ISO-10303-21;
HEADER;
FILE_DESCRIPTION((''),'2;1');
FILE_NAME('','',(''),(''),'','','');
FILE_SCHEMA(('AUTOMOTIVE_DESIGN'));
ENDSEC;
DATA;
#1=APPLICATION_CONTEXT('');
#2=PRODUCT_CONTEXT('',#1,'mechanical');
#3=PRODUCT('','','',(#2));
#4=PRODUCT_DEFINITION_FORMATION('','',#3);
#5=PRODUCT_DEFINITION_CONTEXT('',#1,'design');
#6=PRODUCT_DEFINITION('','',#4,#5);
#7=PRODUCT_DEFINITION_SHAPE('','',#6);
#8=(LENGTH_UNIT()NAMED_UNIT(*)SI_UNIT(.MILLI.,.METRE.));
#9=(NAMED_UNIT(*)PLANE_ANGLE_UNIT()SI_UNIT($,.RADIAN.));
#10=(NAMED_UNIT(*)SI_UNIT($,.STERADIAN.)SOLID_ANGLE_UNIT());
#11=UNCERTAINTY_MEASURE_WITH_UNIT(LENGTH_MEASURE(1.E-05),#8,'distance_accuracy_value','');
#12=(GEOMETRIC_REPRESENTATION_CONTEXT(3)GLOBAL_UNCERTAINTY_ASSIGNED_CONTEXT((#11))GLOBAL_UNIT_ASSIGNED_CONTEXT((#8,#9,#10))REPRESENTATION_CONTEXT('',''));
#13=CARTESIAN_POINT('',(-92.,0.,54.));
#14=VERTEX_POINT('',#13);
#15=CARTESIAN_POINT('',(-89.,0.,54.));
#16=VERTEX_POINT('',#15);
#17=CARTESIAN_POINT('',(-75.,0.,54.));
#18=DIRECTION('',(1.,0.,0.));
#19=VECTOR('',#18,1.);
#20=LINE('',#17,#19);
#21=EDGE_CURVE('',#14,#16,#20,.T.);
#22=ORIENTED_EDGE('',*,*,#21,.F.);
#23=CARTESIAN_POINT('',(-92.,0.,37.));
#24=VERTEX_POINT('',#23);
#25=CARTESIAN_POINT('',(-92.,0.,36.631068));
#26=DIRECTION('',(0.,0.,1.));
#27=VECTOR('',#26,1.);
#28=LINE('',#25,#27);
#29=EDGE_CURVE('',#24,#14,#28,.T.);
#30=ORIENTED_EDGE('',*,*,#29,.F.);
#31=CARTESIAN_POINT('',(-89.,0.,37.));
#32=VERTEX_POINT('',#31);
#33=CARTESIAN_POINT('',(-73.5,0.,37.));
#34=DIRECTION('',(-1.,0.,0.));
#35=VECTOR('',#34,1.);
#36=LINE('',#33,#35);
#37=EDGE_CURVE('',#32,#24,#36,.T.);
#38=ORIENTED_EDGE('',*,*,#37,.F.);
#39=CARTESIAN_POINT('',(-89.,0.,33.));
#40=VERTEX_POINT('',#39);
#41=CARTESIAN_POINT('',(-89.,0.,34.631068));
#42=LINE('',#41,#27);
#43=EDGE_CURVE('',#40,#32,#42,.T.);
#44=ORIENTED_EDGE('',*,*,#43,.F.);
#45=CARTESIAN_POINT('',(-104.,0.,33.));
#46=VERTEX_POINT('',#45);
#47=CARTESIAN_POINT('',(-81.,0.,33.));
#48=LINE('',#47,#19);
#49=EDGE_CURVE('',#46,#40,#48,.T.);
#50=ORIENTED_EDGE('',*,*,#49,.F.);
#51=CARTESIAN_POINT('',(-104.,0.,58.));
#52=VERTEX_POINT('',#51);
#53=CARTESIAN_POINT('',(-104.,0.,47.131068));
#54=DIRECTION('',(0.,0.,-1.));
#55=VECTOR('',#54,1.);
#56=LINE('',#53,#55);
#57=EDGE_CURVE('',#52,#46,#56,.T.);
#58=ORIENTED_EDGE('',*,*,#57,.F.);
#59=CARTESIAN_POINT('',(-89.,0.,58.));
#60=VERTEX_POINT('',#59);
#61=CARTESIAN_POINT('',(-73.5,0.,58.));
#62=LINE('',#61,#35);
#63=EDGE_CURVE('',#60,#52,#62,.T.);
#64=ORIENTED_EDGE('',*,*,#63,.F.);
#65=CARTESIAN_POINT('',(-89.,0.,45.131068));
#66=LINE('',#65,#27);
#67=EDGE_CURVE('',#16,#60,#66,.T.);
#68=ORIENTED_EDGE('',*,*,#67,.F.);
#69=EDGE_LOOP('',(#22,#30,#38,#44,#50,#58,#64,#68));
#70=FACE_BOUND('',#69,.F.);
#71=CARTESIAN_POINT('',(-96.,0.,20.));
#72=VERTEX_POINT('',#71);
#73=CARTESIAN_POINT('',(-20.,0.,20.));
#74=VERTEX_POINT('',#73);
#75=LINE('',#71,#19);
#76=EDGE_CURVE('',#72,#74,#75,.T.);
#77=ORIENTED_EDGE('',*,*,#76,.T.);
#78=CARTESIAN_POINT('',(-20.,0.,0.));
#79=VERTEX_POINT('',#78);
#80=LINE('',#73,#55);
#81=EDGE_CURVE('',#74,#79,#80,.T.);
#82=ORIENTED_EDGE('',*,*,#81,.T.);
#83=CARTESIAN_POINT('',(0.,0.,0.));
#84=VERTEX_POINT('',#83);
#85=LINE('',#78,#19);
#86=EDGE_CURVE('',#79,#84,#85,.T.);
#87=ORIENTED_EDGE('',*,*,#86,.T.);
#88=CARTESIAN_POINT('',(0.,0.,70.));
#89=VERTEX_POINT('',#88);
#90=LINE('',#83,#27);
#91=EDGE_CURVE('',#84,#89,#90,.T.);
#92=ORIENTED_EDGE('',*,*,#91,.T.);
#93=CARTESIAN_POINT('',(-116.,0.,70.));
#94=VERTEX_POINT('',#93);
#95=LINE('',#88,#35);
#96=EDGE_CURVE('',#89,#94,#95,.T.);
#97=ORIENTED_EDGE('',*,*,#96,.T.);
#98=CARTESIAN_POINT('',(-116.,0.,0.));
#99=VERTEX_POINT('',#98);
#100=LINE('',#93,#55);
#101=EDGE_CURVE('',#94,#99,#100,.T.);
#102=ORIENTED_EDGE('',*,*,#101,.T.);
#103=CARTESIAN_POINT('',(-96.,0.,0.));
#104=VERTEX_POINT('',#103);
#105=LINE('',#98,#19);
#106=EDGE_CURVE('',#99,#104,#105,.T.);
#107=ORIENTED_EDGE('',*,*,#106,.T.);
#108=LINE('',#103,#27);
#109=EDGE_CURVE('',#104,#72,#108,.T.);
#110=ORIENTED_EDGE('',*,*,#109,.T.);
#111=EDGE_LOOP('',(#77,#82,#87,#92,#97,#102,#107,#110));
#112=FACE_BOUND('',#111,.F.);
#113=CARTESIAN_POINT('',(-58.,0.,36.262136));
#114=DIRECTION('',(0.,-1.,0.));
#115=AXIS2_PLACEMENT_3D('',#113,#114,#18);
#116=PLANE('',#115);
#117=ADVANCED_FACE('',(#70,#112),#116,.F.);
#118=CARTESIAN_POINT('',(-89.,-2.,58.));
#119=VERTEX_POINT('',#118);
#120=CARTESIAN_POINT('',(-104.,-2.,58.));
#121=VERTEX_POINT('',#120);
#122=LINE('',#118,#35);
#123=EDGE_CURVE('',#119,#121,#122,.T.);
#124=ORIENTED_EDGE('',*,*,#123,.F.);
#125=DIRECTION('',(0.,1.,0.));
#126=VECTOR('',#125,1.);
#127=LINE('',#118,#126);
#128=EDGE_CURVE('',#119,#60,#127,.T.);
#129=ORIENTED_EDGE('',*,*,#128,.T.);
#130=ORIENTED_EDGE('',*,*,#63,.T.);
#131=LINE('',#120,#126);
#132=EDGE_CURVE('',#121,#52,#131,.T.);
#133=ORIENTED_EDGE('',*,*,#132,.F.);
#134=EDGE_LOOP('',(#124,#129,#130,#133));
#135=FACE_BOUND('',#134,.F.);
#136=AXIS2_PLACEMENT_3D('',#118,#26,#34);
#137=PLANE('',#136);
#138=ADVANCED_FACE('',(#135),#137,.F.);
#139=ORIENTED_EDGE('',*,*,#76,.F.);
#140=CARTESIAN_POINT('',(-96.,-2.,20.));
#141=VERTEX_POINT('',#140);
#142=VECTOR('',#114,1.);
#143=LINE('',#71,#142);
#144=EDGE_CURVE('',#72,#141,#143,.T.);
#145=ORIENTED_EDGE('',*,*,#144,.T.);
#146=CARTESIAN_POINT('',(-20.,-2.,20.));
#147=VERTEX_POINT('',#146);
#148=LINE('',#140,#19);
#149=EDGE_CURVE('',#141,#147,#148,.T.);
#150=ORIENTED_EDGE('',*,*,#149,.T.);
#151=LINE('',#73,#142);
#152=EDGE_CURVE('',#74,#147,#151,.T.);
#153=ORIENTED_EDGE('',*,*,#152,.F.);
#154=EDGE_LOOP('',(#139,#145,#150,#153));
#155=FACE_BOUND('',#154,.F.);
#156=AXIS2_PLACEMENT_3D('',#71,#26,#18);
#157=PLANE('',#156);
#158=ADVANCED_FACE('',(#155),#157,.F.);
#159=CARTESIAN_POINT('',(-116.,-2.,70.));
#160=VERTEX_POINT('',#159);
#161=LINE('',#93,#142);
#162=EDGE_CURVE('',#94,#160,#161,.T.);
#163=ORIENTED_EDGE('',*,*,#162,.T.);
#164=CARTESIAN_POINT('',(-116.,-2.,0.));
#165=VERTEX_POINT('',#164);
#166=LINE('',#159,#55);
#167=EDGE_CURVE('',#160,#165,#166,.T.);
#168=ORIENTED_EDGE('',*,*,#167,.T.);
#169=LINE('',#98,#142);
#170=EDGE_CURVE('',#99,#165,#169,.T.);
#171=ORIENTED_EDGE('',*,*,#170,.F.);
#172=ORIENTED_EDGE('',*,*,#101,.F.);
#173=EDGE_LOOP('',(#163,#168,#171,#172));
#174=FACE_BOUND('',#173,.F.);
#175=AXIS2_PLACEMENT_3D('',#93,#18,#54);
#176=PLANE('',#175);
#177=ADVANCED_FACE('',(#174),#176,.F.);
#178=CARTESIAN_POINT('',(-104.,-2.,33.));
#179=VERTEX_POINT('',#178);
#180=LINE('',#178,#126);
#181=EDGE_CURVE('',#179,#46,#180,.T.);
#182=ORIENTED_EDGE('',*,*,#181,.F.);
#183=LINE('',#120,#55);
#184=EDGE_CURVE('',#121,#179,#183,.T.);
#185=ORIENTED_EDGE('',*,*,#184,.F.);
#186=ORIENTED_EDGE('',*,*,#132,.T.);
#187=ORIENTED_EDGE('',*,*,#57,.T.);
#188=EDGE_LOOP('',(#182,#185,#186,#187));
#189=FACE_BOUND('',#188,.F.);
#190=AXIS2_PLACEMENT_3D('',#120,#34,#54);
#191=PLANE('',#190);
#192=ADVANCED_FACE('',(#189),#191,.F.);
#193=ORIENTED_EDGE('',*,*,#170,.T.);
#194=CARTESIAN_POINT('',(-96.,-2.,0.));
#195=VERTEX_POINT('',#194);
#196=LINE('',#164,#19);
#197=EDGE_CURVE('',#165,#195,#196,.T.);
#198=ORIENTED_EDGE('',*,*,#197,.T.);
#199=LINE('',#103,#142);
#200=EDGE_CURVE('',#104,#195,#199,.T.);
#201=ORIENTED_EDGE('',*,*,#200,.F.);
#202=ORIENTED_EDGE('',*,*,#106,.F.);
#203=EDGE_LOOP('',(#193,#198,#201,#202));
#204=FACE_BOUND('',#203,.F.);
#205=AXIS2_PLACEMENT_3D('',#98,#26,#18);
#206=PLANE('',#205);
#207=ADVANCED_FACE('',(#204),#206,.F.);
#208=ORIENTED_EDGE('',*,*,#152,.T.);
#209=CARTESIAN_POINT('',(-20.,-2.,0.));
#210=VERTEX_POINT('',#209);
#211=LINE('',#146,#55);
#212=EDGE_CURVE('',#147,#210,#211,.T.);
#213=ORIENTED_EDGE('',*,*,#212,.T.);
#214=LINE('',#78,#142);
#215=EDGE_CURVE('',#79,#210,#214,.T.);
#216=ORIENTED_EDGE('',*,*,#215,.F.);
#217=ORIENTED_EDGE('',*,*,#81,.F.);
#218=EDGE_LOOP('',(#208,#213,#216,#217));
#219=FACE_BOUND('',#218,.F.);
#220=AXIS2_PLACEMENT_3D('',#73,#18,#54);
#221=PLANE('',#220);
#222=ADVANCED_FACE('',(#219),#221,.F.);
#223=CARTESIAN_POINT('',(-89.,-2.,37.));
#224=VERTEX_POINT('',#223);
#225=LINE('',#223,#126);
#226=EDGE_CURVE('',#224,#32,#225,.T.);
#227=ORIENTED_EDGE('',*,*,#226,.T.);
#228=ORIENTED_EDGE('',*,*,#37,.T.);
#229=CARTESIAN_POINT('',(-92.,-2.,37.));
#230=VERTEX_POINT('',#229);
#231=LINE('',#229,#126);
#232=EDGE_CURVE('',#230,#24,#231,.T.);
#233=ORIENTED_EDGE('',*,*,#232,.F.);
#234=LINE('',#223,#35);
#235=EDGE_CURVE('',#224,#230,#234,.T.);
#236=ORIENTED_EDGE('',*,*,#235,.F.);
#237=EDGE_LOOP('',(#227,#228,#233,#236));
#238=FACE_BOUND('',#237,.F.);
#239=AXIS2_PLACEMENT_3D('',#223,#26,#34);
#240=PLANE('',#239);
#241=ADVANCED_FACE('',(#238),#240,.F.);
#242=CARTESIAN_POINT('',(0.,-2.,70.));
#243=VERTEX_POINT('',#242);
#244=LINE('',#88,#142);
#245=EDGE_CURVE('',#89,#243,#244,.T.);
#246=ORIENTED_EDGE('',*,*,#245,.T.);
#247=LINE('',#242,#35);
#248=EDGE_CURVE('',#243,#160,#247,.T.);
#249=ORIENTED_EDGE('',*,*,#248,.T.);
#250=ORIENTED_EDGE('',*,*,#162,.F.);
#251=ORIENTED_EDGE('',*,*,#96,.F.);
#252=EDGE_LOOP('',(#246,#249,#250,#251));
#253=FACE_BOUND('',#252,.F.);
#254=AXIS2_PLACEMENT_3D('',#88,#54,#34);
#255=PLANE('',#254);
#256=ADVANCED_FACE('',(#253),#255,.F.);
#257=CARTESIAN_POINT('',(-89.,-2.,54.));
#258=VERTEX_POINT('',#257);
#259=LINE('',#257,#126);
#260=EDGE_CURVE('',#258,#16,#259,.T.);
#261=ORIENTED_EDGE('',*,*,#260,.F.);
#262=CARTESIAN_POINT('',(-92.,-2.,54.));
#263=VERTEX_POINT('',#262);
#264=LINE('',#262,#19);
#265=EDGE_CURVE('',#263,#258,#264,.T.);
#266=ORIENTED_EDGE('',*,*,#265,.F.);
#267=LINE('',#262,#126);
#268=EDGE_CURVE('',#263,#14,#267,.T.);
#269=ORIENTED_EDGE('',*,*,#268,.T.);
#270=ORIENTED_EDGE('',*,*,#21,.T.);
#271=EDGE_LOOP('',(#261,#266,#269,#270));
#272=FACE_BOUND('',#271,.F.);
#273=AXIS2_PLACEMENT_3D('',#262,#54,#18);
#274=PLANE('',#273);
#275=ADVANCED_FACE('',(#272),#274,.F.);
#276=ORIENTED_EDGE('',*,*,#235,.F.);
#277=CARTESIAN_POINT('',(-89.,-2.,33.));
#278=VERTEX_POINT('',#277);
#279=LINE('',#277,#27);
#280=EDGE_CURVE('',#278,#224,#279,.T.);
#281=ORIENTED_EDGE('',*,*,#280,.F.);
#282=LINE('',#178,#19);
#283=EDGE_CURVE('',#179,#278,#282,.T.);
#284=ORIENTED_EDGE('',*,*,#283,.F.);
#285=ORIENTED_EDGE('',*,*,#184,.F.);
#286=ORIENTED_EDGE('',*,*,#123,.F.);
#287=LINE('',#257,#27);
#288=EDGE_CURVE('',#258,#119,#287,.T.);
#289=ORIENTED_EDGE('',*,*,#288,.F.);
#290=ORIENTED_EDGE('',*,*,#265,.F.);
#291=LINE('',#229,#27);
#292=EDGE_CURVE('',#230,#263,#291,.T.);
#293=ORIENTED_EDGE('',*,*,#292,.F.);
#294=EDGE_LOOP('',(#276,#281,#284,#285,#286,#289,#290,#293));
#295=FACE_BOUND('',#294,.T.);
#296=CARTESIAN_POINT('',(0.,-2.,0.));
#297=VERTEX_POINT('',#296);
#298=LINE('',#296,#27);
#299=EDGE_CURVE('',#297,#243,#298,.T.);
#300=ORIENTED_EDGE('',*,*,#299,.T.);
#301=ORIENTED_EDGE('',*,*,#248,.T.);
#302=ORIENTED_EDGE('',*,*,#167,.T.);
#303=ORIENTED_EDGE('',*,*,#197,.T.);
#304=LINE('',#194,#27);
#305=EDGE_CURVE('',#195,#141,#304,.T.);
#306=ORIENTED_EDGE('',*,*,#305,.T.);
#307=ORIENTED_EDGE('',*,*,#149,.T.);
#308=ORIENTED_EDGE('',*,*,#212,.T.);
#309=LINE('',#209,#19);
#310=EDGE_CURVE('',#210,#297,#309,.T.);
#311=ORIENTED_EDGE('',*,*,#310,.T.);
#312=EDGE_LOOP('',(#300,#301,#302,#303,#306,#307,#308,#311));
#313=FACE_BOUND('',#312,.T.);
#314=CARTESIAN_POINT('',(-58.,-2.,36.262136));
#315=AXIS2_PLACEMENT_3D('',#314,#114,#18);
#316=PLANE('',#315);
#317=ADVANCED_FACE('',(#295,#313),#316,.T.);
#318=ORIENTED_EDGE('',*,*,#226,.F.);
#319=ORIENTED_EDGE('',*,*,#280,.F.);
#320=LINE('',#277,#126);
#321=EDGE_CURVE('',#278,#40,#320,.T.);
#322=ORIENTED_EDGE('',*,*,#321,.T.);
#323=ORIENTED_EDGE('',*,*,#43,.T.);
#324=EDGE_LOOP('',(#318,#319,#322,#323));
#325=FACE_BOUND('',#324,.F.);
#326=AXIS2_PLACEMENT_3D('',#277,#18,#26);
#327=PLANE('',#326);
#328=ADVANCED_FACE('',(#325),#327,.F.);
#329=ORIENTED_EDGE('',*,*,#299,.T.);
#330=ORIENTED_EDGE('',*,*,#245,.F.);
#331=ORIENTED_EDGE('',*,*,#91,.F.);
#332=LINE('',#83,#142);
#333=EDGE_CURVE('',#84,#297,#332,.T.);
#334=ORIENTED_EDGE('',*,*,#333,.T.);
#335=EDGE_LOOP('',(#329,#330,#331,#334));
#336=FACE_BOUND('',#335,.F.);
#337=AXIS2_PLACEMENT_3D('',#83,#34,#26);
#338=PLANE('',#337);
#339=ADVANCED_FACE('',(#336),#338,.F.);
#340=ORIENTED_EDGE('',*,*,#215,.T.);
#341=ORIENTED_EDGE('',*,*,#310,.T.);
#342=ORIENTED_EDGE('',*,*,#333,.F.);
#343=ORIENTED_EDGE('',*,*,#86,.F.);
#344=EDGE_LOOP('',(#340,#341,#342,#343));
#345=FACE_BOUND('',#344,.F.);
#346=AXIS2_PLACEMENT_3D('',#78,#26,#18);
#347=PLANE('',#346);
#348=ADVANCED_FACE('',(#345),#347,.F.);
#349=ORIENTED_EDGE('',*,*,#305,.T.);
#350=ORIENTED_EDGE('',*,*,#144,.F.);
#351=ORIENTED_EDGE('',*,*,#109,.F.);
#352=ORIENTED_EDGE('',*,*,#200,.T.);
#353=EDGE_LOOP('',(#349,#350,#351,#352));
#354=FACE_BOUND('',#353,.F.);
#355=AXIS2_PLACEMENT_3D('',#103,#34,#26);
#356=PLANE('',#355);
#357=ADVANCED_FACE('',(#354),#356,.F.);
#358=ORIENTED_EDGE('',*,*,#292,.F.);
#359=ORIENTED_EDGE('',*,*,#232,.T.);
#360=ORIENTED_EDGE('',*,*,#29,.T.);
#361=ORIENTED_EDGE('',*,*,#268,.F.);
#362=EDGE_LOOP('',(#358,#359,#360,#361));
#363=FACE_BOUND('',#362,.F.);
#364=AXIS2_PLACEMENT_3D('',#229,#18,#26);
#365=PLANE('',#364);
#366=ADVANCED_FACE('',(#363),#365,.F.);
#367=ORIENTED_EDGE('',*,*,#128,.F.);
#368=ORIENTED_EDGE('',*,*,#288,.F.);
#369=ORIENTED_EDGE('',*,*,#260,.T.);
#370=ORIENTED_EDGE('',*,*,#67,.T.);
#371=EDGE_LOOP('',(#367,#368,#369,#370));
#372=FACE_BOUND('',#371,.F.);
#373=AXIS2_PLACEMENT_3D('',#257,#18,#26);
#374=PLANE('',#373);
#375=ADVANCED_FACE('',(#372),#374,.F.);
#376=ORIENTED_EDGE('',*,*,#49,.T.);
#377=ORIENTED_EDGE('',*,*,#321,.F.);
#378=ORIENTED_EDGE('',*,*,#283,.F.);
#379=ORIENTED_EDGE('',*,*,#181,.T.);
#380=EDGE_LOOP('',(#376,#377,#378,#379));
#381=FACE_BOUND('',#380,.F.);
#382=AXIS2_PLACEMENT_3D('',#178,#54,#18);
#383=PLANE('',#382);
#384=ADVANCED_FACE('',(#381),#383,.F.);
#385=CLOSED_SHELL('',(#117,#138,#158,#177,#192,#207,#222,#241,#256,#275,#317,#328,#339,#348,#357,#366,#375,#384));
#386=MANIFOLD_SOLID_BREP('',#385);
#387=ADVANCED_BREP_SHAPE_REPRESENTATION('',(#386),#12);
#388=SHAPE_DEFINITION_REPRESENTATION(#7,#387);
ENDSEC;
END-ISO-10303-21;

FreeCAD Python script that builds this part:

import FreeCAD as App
import Part
import Sketcher

doc = App.newDocument("Part")
body = doc.addObject("PartDesign::Body", "Body")

# Sketch on XZ plane
sketch1 = body.newObject("Sketcher::SketchObject", "Sketch")
sketch1.AttachmentSupport = (doc.getObject("XZ_Plane"), [""])
sketch1.MapMode = "FlatFace"
sketch1.addGeometry(Part.LineSegment(App.Vector(-20, 0, 0), App.Vector(0, 0, 0)), False)
sketch1.addGeometry(Part.LineSegment(App.Vector(0, 0, 0), App.Vector(0, 70, 0)), False)
sketch1.addGeometry(Part.LineSegment(App.Vector(0, 70, 0), App.Vector(-116, 70, 0)), False)
sketch1.addGeometry(Part.LineSegment(App.Vector(-116, 70, 0), App.Vector(-116, 0, 0)), False)
sketch1.addGeometry(Part.LineSegment(App.Vector(-116, 0, 0), App.Vector(-96, 0, 0)), False)
sketch1.addGeometry(Part.LineSegment(App.Vector(-96, 0, 0), App.Vector(-96, 20, 0)), False)
sketch1.addGeometry(Part.LineSegment(App.Vector(-96, 20, 0), App.Vector(-20, 20, 0)), False)
sketch1.addGeometry(Part.LineSegment(App.Vector(-20, 20, 0), App.Vector(-20, 0, 0)), False)
sketch1.addConstraint(Sketcher.Constraint("Coincident", 0, 2, 1, 1))
sketch1.addConstraint(Sketcher.Constraint("Coincident", 1, 2, 2, 1))
sketch1.addConstraint(Sketcher.Constraint("Coincident", 2, 2, 3, 1))
sketch1.addConstraint(Sketcher.Constraint("Coincident", 3, 2, 4, 1))
sketch1.addConstraint(Sketcher.Constraint("Coincident", 4, 2, 5, 1))
sketch1.addConstraint(Sketcher.Constraint("Coincident", 5, 2, 6, 1))
sketch1.addConstraint(Sketcher.Constraint("Coincident", 6, 2, 7, 1))
sketch1.addConstraint(Sketcher.Constraint("Coincident", 7, 2, 0, 1))
sketch1.addConstraint(Sketcher.Constraint("Horizontal", 0))
sketch1.addConstraint(Sketcher.Constraint("Vertical", 1))
sketch1.addConstraint(Sketcher.Constraint("Horizontal", 2))
sketch1.addConstraint(Sketcher.Constraint("Vertical", 3))
sketch1.addConstraint(Sketcher.Constraint("Horizontal", 4))
sketch1.addConstraint(Sketcher.Constraint("Vertical", 5))
sketch1.addConstraint(Sketcher.Constraint("Horizontal", 6))
sketch1.addConstraint(Sketcher.Constraint("Vertical", 7))
sketch1.addConstraint(Sketcher.Constraint("Coincident", 0, 2, -1, 1))
sketch1.addConstraint(Sketcher.Constraint("PointOnObject", 3, 2, -1))
sketch1.addConstraint(Sketcher.Constraint("Equal", 0, 4))
sketch1.addConstraint(Sketcher.Constraint("Equal", 4, 5))
sketch1.addConstraint(Sketcher.Constraint("DistanceX", 0, 1, 0, 2, 20.0))
sketch1.addConstraint(Sketcher.Constraint("DistanceX", 2, 2, 2, 1, 116.0))
sketch1.addConstraint(Sketcher.Constraint("DistanceY", 1, 1, 1, 2, 70.0))
pad1 = body.newObject("PartDesign::Pad", "Pad")
pad1.Profile = sketch1
pad1.Length = 2

# Sketch on XZ plane
sketch2 = body.newObject("Sketcher::SketchObject", "Sketch001")
sketch2.AttachmentSupport = (doc.getObject("XZ_Plane"), [""])
sketch2.MapMode = "FlatFace"
sketch2.AttachmentOffset = App.Placement(App.Vector(0, 0, 2), App.Rotation())
sketch2.addGeometry(Part.LineSegment(App.Vector(-89, 58, 0), App.Vector(-104, 58, 0)), False)
sketch2.addGeometry(Part.LineSegment(App.Vector(-104, 58, 0), App.Vector(-104, 33, 0)), False)
sketch2.addGeometry(Part.LineSegment(App.Vector(-104, 33, 0), App.Vector(-89, 33, 0)), False)
sketch2.addGeometry(Part.LineSegment(App.Vector(-89, 33, 0), App.Vector(-89, 37, 0)), False)
sketch2.addGeometry(Part.LineSegment(App.Vector(-89, 37, 0), App.Vector(-92, 37, 0)), False)
sketch2.addGeometry(Part.LineSegment(App.Vector(-92, 37, 0), App.Vector(-92, 54, 0)), False)
sketch2.addGeometry(Part.LineSegment(App.Vector(-92, 54, 0), App.Vector(-89, 54, 0)), False)
sketch2.addGeometry(Part.LineSegment(App.Vector(-89, 54, 0), App.Vector(-89, 58, 0)), False)
sketch2.addConstraint(Sketcher.Constraint("Coincident", 0, 2, 1, 1))
sketch2.addConstraint(Sketcher.Constraint("Coincident", 1, 2, 2, 1))
sketch2.addConstraint(Sketcher.Constraint("Coincident", 2, 2, 3, 1))
sketch2.addConstraint(Sketcher.Constraint("Coincident", 3, 2, 4, 1))
sketch2.addConstraint(Sketcher.Constraint("Coincident", 4, 2, 5, 1))
sketch2.addConstraint(Sketcher.Constraint("Coincident", 5, 2, 6, 1))
sketch2.addConstraint(Sketcher.Constraint("Coincident", 6, 2, 7, 1))
sketch2.addConstraint(Sketcher.Constraint("Coincident", 7, 2, 0, 1))
sketch2.addConstraint(Sketcher.Constraint("Horizontal", 0))
sketch2.addConstraint(Sketcher.Constraint("Vertical", 1))
sketch2.addConstraint(Sketcher.Constraint("Horizontal", 2))
sketch2.addConstraint(Sketcher.Constraint("Vertical", 3))
sketch2.addConstraint(Sketcher.Constraint("Horizontal", 4))
sketch2.addConstraint(Sketcher.Constraint("Vertical", 5))
sketch2.addConstraint(Sketcher.Constraint("Horizontal", 6))
sketch2.addConstraint(Sketcher.Constraint("Vertical", 7))
sketch2.addConstraint(Sketcher.Constraint("Vertical", 3, 2, 6, 2))
sketch2.addConstraint(Sketcher.Constraint("Equal", 3, 7))
sketch2.addConstraint(Sketcher.Constraint("DistanceX", 0, 2, 0, 1, 15.0))
sketch2.addConstraint(Sketcher.Constraint("DistanceX", 4, 2, 4, 1, 3.0))
sketch2.addConstraint(Sketcher.Constraint("DistanceY", 1, 2, 1, 1, 25.0))
sketch2.addConstraint(Sketcher.Constraint("DistanceY", 3, 1, 3, 2, 4.0))
sketch2.addConstraint(Sketcher.Constraint("DistanceX", 0, 2, -1, 1, 104.0))
sketch2.addConstraint(Sketcher.Constraint("DistanceY", -1, 1, 0, 2, 58.0))
pocket1 = body.newObject("PartDesign::Pocket", "Pocket")
pocket1.Profile = sketch2
pocket1.Type = "ThroughAll"

doc.recompute()
